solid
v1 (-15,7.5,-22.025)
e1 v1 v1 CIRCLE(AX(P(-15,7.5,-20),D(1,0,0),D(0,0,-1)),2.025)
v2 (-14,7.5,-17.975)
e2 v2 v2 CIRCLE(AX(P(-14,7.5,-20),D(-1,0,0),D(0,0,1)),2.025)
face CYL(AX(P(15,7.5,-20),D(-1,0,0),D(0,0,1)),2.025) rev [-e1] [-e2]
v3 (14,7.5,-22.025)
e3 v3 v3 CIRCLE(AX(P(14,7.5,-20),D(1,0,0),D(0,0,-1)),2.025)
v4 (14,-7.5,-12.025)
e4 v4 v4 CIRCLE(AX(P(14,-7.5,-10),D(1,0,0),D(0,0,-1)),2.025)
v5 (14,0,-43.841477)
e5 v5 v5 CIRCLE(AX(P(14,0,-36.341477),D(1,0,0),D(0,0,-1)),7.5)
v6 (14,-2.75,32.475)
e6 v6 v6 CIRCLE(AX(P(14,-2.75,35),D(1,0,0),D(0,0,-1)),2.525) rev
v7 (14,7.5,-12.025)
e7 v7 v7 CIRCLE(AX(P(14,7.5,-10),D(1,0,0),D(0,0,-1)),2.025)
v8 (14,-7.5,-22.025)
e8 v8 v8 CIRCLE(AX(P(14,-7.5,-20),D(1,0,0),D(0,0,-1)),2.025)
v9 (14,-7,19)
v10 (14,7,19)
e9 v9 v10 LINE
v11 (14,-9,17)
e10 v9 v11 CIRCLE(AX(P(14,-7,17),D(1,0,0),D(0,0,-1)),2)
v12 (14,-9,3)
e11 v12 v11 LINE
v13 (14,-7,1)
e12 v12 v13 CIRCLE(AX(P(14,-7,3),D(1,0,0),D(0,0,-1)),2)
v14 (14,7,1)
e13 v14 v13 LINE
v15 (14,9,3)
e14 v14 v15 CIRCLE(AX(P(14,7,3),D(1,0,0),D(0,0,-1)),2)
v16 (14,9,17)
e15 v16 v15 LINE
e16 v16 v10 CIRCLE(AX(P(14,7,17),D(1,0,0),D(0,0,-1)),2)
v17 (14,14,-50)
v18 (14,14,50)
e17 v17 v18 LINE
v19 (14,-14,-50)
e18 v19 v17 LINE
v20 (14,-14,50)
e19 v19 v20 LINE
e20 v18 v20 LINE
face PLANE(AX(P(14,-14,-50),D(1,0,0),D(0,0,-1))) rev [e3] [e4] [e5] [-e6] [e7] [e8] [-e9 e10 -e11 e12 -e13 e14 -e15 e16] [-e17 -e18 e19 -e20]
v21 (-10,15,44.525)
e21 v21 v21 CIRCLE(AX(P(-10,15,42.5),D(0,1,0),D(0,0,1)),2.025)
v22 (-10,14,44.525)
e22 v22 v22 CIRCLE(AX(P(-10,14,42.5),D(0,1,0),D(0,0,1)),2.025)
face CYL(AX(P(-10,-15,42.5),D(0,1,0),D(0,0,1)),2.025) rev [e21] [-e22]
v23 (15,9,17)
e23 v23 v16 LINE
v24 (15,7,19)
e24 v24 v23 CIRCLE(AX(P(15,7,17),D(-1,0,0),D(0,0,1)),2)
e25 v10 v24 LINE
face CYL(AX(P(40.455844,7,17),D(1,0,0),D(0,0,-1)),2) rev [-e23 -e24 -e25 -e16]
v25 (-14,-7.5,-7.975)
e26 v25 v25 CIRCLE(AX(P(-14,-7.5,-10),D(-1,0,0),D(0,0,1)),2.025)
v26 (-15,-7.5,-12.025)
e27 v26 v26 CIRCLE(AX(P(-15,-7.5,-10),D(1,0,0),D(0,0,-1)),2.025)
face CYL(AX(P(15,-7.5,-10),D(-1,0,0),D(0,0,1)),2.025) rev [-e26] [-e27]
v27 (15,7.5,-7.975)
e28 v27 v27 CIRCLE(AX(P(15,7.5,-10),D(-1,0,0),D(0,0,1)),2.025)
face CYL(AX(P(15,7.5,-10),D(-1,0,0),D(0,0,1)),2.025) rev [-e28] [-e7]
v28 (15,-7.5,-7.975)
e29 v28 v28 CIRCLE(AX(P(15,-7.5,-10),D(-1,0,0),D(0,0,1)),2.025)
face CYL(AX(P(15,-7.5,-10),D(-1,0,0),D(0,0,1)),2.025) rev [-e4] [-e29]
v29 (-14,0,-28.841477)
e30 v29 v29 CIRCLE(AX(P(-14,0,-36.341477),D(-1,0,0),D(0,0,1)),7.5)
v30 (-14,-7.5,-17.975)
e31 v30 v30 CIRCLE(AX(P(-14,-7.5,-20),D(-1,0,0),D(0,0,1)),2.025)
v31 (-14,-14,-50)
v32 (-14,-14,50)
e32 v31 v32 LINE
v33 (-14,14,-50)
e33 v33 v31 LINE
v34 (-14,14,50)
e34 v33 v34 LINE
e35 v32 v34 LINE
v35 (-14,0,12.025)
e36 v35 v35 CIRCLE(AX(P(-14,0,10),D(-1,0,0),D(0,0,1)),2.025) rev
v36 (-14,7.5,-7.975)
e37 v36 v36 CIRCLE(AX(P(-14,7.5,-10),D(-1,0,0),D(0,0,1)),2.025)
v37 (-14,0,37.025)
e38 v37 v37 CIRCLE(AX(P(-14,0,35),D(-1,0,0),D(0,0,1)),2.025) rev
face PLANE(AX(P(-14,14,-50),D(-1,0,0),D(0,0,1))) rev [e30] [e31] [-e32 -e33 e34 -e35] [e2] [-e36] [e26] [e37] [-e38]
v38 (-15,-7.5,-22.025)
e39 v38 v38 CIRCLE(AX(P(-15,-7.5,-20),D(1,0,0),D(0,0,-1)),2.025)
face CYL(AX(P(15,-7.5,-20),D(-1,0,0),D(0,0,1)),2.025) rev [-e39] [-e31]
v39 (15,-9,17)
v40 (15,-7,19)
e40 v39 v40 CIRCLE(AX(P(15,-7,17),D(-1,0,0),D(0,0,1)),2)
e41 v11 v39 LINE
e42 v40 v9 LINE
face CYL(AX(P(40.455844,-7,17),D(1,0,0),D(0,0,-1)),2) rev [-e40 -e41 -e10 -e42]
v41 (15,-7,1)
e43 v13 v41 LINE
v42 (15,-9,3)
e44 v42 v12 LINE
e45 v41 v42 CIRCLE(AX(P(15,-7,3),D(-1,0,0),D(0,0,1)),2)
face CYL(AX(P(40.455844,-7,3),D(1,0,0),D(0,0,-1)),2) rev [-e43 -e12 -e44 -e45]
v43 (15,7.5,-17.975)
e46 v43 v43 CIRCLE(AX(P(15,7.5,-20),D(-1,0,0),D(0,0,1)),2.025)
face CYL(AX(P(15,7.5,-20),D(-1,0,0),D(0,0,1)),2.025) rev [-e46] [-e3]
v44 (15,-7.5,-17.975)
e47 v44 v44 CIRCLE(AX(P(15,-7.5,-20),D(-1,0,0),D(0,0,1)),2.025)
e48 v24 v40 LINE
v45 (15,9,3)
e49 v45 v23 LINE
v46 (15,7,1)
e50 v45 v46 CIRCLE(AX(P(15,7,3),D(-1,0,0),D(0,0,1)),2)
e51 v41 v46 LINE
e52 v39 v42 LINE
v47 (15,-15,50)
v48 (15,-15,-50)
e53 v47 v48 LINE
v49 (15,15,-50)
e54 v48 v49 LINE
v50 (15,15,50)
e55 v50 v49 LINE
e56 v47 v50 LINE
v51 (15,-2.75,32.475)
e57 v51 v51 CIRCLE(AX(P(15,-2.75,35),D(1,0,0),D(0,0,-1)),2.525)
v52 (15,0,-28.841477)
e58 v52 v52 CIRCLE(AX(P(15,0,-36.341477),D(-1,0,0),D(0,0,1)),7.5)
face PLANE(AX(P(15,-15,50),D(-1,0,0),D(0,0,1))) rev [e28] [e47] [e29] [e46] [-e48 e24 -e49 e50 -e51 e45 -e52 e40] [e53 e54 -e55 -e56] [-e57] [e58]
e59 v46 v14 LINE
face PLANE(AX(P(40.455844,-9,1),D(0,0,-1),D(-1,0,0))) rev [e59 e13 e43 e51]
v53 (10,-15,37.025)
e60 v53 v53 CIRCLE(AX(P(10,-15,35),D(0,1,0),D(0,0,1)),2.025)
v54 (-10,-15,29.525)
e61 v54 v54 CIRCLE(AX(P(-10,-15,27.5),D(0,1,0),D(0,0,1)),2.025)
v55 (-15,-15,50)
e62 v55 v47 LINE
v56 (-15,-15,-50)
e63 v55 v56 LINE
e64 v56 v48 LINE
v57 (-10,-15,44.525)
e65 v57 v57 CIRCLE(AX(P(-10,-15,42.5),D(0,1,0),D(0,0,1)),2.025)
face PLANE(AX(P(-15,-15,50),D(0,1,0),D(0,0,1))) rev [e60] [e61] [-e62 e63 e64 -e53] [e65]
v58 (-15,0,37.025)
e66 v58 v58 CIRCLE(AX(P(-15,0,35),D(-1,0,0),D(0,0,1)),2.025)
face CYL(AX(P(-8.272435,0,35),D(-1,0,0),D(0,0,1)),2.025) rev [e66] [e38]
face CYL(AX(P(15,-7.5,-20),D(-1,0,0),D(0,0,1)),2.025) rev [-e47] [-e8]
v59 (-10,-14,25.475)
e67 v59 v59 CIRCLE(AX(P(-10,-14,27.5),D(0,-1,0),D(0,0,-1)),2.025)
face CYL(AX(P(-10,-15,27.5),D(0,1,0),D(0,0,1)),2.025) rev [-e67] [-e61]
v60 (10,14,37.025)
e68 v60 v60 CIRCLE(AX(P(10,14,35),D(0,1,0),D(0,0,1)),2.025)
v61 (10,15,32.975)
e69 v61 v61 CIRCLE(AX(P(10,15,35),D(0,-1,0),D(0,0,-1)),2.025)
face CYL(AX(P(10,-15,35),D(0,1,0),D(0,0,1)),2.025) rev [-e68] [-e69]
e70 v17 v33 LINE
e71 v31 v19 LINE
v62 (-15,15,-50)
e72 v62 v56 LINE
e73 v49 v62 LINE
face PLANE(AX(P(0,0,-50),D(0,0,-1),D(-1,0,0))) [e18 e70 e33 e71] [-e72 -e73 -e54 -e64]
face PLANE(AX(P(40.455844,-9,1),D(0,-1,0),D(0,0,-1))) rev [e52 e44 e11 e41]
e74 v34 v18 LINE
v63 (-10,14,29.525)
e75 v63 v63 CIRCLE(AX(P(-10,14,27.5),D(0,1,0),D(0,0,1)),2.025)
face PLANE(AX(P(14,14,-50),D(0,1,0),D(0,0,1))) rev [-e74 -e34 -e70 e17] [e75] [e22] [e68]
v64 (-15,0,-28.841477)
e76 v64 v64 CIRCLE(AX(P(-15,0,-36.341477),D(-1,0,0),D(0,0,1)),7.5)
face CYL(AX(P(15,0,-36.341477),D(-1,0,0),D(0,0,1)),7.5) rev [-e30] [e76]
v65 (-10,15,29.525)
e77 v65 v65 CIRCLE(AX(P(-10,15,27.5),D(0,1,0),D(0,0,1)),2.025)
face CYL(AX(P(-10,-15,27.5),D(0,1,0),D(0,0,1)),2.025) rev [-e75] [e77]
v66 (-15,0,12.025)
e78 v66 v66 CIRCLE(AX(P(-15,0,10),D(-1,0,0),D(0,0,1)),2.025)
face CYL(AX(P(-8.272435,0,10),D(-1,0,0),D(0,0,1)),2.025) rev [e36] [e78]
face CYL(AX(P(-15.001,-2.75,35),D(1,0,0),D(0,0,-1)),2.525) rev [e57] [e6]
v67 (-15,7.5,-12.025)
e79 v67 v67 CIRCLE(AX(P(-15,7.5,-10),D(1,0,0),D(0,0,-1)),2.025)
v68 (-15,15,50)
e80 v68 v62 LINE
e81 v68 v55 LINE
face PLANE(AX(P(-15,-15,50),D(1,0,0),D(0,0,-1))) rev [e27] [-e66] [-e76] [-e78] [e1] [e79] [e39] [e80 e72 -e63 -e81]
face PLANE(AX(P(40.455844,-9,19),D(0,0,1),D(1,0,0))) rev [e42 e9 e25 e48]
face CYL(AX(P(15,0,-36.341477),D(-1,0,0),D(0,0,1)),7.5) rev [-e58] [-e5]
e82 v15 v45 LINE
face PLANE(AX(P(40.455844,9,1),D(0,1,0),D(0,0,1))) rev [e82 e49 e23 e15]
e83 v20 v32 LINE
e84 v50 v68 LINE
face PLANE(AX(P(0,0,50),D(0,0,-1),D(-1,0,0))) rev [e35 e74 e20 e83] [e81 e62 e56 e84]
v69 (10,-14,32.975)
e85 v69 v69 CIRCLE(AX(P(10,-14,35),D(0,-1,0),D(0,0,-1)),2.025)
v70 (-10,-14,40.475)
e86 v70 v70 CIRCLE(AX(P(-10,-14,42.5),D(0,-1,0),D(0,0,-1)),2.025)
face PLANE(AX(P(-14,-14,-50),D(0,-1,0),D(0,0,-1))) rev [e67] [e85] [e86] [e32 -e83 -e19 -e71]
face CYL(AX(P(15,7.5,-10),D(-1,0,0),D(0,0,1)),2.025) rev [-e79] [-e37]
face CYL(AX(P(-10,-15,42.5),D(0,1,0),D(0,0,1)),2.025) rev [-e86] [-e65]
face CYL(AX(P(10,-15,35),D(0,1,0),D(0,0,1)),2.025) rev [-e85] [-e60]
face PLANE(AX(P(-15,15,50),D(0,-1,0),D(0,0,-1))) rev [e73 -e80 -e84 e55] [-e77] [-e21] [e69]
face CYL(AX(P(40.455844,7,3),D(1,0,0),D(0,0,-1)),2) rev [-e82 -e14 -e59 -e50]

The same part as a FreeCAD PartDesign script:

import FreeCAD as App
import Part
import Sketcher
from FreeCAD import Vector
Q = App.Units.Quantity


def edges_at(feature, points):
    """Names of the edges that pass closest to the given points."""
    edges = feature.Shape.Edges
    near = lambda p: min(range(len(edges)), key=lambda i: edges[i].distToShape(Part.Vertex(*p))[0])
    return sorted({f"Edge{near(p) + 1}" for p in points})

doc = App.newDocument("Part")
body = doc.addObject("PartDesign::Body", "Body")

sketch1 = doc.addObject("Sketcher::SketchObject", "Sketch")
body.addObject(sketch1)
sketch1.AttachmentSupport = (doc.XY_Plane, [""])
sketch1.MapMode = "FlatFace"
sketch1.addGeometry([
    Part.LineSegment(Vector(-15, 15, 0), Vector(-15, -15, 0)),
    Part.LineSegment(Vector(-15, -15, 0), Vector(15, -15, 0)),
    Part.LineSegment(Vector(15, -15, 0), Vector(15, 15, 0)),
    Part.LineSegment(Vector(15, 15, 0), Vector(-15, 15, 0)),
], False)
sketch1.addConstraint([
    Sketcher.Constraint("Coincident", 0, 2, 1, 1),
    Sketcher.Constraint("Coincident", 1, 2, 2, 1),
    Sketcher.Constraint("Coincident", 2, 2, 3, 1),
    Sketcher.Constraint("Coincident", 3, 2, 0, 1),
    Sketcher.Constraint("Vertical", 0),
    Sketcher.Constraint("Horizontal", 1),
    Sketcher.Constraint("Vertical", 2),
    Sketcher.Constraint("Horizontal", 3),
    Sketcher.Constraint("Symmetric", 0, 2, 2, 2, -1, 1),
    Sketcher.Constraint("Equal", 3, 0),
    Sketcher.Constraint("DistanceX", 1, 1, 1, 2, Q("30 mm")),
])
pad1 = doc.addObject("PartDesign::Pad", "Pad")
body.addObject(pad1)
pad1.Profile = sketch1
pad1.Length = 100
pad1.Midplane = True

sketch2 = doc.addObject("Sketcher::SketchObject", "Sketch001")
body.addObject(sketch2)
sketch2.AttachmentSupport = (doc.XY_Plane, [""])
sketch2.MapMode = "FlatFace"
sketch2.AttachmentOffset = App.Placement(Vector(0, 0, 50), App.Rotation())
sketch2.addGeometry([
    Part.LineSegment(Vector(-14, 14, 0), Vector(-14, -14, 0)),
    Part.LineSegment(Vector(-14, -14, 0), Vector(14, -14, 0)),
    Part.LineSegment(Vector(14, -14, 0), Vector(14, 14, 0)),
    Part.LineSegment(Vector(14, 14, 0), Vector(-14, 14, 0)),
], False)
sketch2.addConstraint([
    Sketcher.Constraint("Coincident", 0, 2, 1, 1),
    Sketcher.Constraint("Coincident", 1, 2, 2, 1),
    Sketcher.Constraint("Coincident", 2, 2, 3, 1),
    Sketcher.Constraint("Coincident", 3, 2, 0, 1),
    Sketcher.Constraint("Vertical", 0),
    Sketcher.Constraint("Horizontal", 1),
    Sketcher.Constraint("Vertical", 2),
    Sketcher.Constraint("Horizontal", 3),
    Sketcher.Constraint("Symmetric", 0, 2, 2, 2, -1, 1),
    Sketcher.Constraint("Equal", 3, 0),
    Sketcher.Constraint("DistanceX", 1, 1, 1, 2, Q("28 mm")),
])
pocket1 = doc.addObject("PartDesign::Pocket", "Pocket")
body.addObject(pocket1)
pocket1.Profile = sketch2
pocket1.Type = "ThroughAll"
pocket1.Midplane = True

sketch3 = doc.addObject("Sketcher::SketchObject", "Sketch002")
body.addObject(sketch3)
sketch3.AttachmentSupport = (doc.YZ_Plane, [""])
sketch3.MapMode = "FlatFace"
sketch3.AttachmentOffset = App.Placement(Vector(0, 0, -15), App.Rotation())
sketch3.addGeometry([
    Part.Circle(Vector(0, 10, 0), Vector(0, 0, 1), 2),
    Part.Circle(Vector(0, 35, 0), Vector(0, 0, 1), 2),
], False)
sketch3.addConstraint([
    Sketcher.Constraint("Equal", 0, 1),
    Sketcher.Constraint("PointOnObject", 0, 3, -2),
    Sketcher.Constraint("PointOnObject", 1, 3, -2),
    Sketcher.Constraint("Diameter", 0, Q("4.05 mm")),
    Sketcher.Constraint("DistanceY", -1, 1, 0, 3, Q("10 mm")),
    Sketcher.Constraint("DistanceY", -1, 1, 1, 3, Q("35 mm")),
])
pocket2 = doc.addObject("PartDesign::Pocket", "Pocket001")
body.addObject(pocket2)
pocket2.Profile = sketch3
pocket2.Length = 1
pocket2.Reversed = True

sketch4 = doc.addObject("Sketcher::SketchObject", "Sketch003")
body.addObject(sketch4)
sketch4.AttachmentSupport = (doc.YZ_Plane, [""])
sketch4.MapMode = "FlatFace"
sketch4.AttachmentOffset = App.Placement(Vector(0, 0, 14), App.Rotation())
sketch4.addGeometry([
    Part.LineSegment(Vector(9, 1, 0), Vector(-9, 1, 0)),
    Part.LineSegment(Vector(-9, 1, 0), Vector(-9, 19, 0)),
    Part.LineSegment(Vector(-9, 19, 0), Vector(9, 19, 0)),
    Part.LineSegment(Vector(9, 19, 0), Vector(9, 1, 0)),
], False)
sketch4.addConstraint([
    Sketcher.Constraint("Coincident", 0, 2, 1, 1),
    Sketcher.Constraint("Coincident", 1, 2, 2, 1),
    Sketcher.Constraint("Coincident", 2, 2, 3, 1),
    Sketcher.Constraint("Coincident", 3, 2, 0, 1),
    Sketcher.Constraint("Horizontal", 0),
    Sketcher.Constraint("Vertical", 1),
    Sketcher.Constraint("Horizontal", 2),
    Sketcher.Constraint("Vertical", 3),
    Sketcher.Constraint("Equal", 2, 1),
    Sketcher.Constraint("DistanceX", 0, 2, 0, 1, Q("18 mm")),
    Sketcher.Constraint("DistanceX", 0, 2, -1, 1, Q("9 mm")),
    Sketcher.Constraint("DistanceY", -1, 1, 0, 2, Q("1 mm")),
])
pocket3 = doc.addObject("PartDesign::Pocket", "Pocket002")
body.addObject(pocket3)
pocket3.Profile = sketch4
pocket3.Length = 1
pocket3.Reversed = True
doc.recompute()

fillet = doc.addObject("PartDesign::Fillet", "Fillet")
body.addObject(fillet)
fillet.Base = (pocket3, edges_at(pocket3, [
    (14.5, 9, 19),
    (14.5, -9, 19),
    (14.5, -9, 1),
    (14.5, 9, 1),
]))
fillet.Radius = 2

sketch5 = doc.addObject("Sketcher::SketchObject", "Sketch004")
body.addObject(sketch5)
sketch5.AttachmentSupport = (doc.XZ_Plane, [""])
sketch5.MapMode = "FlatFace"
sketch5.AttachmentOffset = App.Placement(Vector(0, 0, 16), App.Rotation())
sketch5.addGeometry([
    Part.Circle(Vector(-10, 27.5, 0), Vector(0, 0, 1), 2),
    Part.Circle(Vector(-10, 42.5, 0), Vector(0, 0, 1), 2),
], False)
sketch5.addConstraint([
    Sketcher.Constraint("Equal", 0, 1),
    Sketcher.Constraint("Vertical", 0, 3, 1, 3),
    Sketcher.Constraint("Diameter", 0, Q("4.05 mm")),
    Sketcher.Constraint("DistanceX", 0, 3, -1, 1, Q("10 mm")),
    Sketcher.Constraint("DistanceY", 0, 3, 1, 3, Q("15 mm")),
    Sketcher.Constraint("DistanceY", -1, 1, 0, 3, Q("27.5 mm")),
])
pocket4 = doc.addObject("PartDesign::Pocket", "Pocket003")
body.addObject(pocket4)
pocket4.Profile = sketch5
pocket4.Length = 32
doc.recompute()

mirrored = doc.addObject("PartDesign::Mirrored", "Mirrored")
body.addObject(mirrored)
mirrored.Originals = [pocket4]
mirrored.MirrorPlane = (doc.YZ_Plane, [""])
body.Tip = mirrored

sketch6 = doc.addObject("Sketcher::SketchObject", "Sketch005")
body.addObject(sketch6)
sketch6.AttachmentSupport = (doc.YZ_Plane, [""])
sketch6.MapMode = "FlatFace"
sketch6.AttachmentOffset = App.Placement(Vector(0, 0, -15), App.Rotation())
sketch6.addGeometry([
    Part.Circle(Vector(0, 35, 0), Vector(0, 0, 1), 2),
    Part.Circle(Vector(-7.5, -20, 0), Vector(0, 0, 1), 2),
    Part.Circle(Vector(7.5, -20, 0), Vector(0, 0, 1), 2),
], False)
sketch6.addConstraint([
    Sketcher.Constraint("Equal", 0, 1),
    Sketcher.Constraint("Equal", 1, 2),
    Sketcher.Constraint("Symmetric", 1, 3, 2, 3, -2),
    Sketcher.Constraint("PointOnObject", 0, 3, -2),
    Sketcher.Constraint("Diameter", 0, Q("4.05 mm")),
    Sketcher.Constraint("DistanceY", -1, 1, 0, 3, Q("35 mm")),
    Sketcher.Constraint("DistanceY", 1, 3, -1, 1, Q("20 mm")),
    Sketcher.Constraint("DistanceX", 1, 3, 2, 3, Q("15 mm")),
])
pocket5 = doc.addObject("PartDesign::Pocket", "Pocket004")
body.addObject(pocket5)
pocket5.Profile = sketch6
pocket5.Type = "ThroughAll"
pocket5.Midplane = True

sketch7 = doc.addObject("Sketcher::SketchObject", "Sketch006")
body.addObject(sketch7)
sketch7.AttachmentSupport = (doc.YZ_Plane, [""])
sketch7.MapMode = "FlatFace"
sketch7.AttachmentOffset = App.Placement(Vector(0, 0, -15), App.Rotation())
sketch7.addGeometry(Part.Circle(Vector(0, -36, 0), Vector(0, 0, 1), 8), False)
sketch7.addConstraint([
    Sketcher.Constraint("PointOnObject", 0, 3, -2),
    Sketcher.Constraint("Diameter", 0, Q("15 mm")),
    Sketcher.Constraint("DistanceY", 0, 3, -1, 1, Q("36.341477 mm")),
])
pocket6 = doc.addObject("PartDesign::Pocket", "Pocket005")
body.addObject(pocket6)
pocket6.Profile = sketch7
pocket6.Type = "ThroughAll"
pocket6.Midplane = True

sketch8 = doc.addObject("Sketcher::SketchObject", "Sketch007")
body.addObject(sketch8)
sketch8.AttachmentSupport = (doc.YZ_Plane, [""])
sketch8.MapMode = "FlatFace"
sketch8.AttachmentOffset = App.Placement(Vector(0, 0, -15), App.Rotation())
sketch8.addGeometry([
    Part.Circle(Vector(7.5, -10, 0), Vector(0, 0, 1), 2),
    Part.Circle(Vector(-7.5, -10, 0), Vector(0, 0, 1), 2),
], False)
sketch8.addConstraint([
    Sketcher.Constraint("Equal", 0, 1),
    Sketcher.Constraint("Symmetric", 0, 3, 1, 3, -2),
    Sketcher.Constraint("Diameter", 0, Q("4.05 mm")),
    Sketcher.Constraint("DistanceY", 0, 3, -1, 1, Q("10 mm")),
    Sketcher.Constraint("DistanceX", 1, 3, 0, 3, Q("15 mm")),
])
pocket7 = doc.addObject("PartDesign::Pocket", "Pocket006")
body.addObject(pocket7)
pocket7.Profile = sketch8
pocket7.Type = "ThroughAll"
pocket7.Midplane = True

sketch9 = doc.addObject("Sketcher::SketchObject", "Sketch008")
body.addObject(sketch9)
sketch9.AttachmentSupport = (doc.XZ_Plane, [""])
sketch9.MapMode = "FlatFace"
sketch9.AttachmentOffset = App.Placement(Vector(0, 0, -15), App.Rotation())
sketch9.addGeometry([
    Part.Circle(Vector(10, 27.5, 0), Vector(0, 0, 1), 2.2),
    Part.Circle(Vector(10, 42.5, 0), Vector(0, 0, 1), 2.2),
], False)
sketch9.addConstraint([
    Sketcher.Constraint("Equal", 0, 1),
    Sketcher.Constraint("Vertical", 0, 3, 1, 3),
    Sketcher.Constraint("Diameter", 0, Q("4.5 mm")),
    Sketcher.Constraint("DistanceX", -1, 1, 0, 3, Q("10 mm")),
    Sketcher.Constraint("DistanceY", 0, 3, 1, 3, Q("15 mm")),
    Sketcher.Constraint("DistanceY", -1, 1, 0, 3, Q("27.5 mm")),
])
pad2 = doc.addObject("PartDesign::Pad", "Pad001")
body.addObject(pad2)
pad2.Profile = sketch9
pad2.Length = 1

sketch10 = doc.addObject("Sketcher::SketchObject", "Sketch009")
body.addObject(sketch10)
sketch10.AttachmentSupport = (doc.XZ_Plane, [""])
sketch10.MapMode = "FlatFace"
sketch10.AttachmentOffset = App.Placement(Vector(0, 0, 15), App.Rotation())
sketch10.addGeometry([
    Part.Circle(Vector(10, 42.5, 0), Vector(0, 0, 1), 2.5),
    Part.Circle(Vector(10, 27.5, 0), Vector(0, 0, 1), 2.5),
], False)
sketch10.addConstraint([
    Sketcher.Constraint("Equal", 0, 1),
    Sketcher.Constraint("Vertical", 0, 3, 1, 3),
    Sketcher.Constraint("Diameter", 0, Q("5 mm")),
    Sketcher.Constraint("DistanceX", -1, 1, 0, 3, Q("10 mm")),
    Sketcher.Constraint("DistanceY", 1, 3, 0, 3, Q("15 mm")),
    Sketcher.Constraint("DistanceY", -1, 1, 0, 3, Q("42.5 mm")),
])
pad3 = doc.addObject("PartDesign::Pad", "Pad002")
body.addObject(pad3)
pad3.Profile = sketch10
pad3.Length = 1
pad3.Reversed = True

sketch11 = doc.addObject("Sketcher::SketchObject", "Sketch010")
body.addObject(sketch11)
sketch11.AttachmentSupport = (doc.XZ_Plane, [""])
sketch11.MapMode = "FlatFace"
sketch11.AttachmentOffset = App.Placement(Vector(0, 0, -15), App.Rotation())
sketch11.addGeometry(Part.Circle(Vector(10, 35, 0), Vector(0, 0, 1), 2), False)
sketch11.addConstraint([
    Sketcher.Constraint("Diameter", 0, Q("4.05 mm")),
    Sketcher.Constraint("DistanceX", -1, 1, 0, 3, Q("10 mm")),
    Sketcher.Constraint("DistanceY", -1, 1, 0, 3, Q("35 mm")),
])
pocket8 = doc.addObject("PartDesign::Pocket", "Pocket007")
body.addObject(pocket8)
pocket8.Profile = sketch11
pocket8.Type = "ThroughAll"
pocket8.Midplane = True

sketch12 = doc.addObject("Sketcher::SketchObject", "Sketch011")
body.addObject(sketch12)
sketch12.AttachmentSupport = (doc.YZ_Plane, [""])
sketch12.MapMode = "FlatFace"
sketch12.AttachmentOffset = App.Placement(Vector(0, 0, 15), App.Rotation())
sketch12.addGeometry(Part.Circle(Vector(0, 35, 0), Vector(0, 0, 1), 2.5), False)
sketch12.addConstraint([
    Sketcher.Constraint("PointOnObject", 0, 3, -2),
    Sketcher.Constraint("Diameter", 0, Q("5 mm")),
    Sketcher.Constraint("DistanceY", -1, 1, 0, 3, Q("35 mm")),
])
pad4 = doc.addObject("PartDesign::Pad", "Pad003")
body.addObject(pad4)
pad4.Profile = sketch12
pad4.Length = 1
pad4.Reversed = True

sketch13 = doc.addObject("Sketcher::SketchObject", "Sketch012")
body.addObject(sketch13)
sketch13.AttachmentSupport = (doc.YZ_Plane, [""])
sketch13.MapMode = "FlatFace"
sketch13.AttachmentOffset = App.Placement(Vector(0, 0, 15), App.Rotation())
sketch13.addGeometry(Part.Circle(Vector(-2.8, 35, 0), Vector(0, 0, 1), 2.5), False)
sketch13.addConstraint([
    Sketcher.Constraint("Diameter", 0, Q("5.05 mm")),
    Sketcher.Constraint("DistanceY", -1, 1, 0, 3, Q("35 mm")),
    Sketcher.Constraint("DistanceX", 0, 3, -1, 1, Q("2.75 mm")),
])
pocket9 = doc.addObject("PartDesign::Pocket", "Pocket008")
body.addObject(pocket9)
pocket9.Profile = sketch13
pocket9.Type = "UpToFirst"

doc.recompute()
